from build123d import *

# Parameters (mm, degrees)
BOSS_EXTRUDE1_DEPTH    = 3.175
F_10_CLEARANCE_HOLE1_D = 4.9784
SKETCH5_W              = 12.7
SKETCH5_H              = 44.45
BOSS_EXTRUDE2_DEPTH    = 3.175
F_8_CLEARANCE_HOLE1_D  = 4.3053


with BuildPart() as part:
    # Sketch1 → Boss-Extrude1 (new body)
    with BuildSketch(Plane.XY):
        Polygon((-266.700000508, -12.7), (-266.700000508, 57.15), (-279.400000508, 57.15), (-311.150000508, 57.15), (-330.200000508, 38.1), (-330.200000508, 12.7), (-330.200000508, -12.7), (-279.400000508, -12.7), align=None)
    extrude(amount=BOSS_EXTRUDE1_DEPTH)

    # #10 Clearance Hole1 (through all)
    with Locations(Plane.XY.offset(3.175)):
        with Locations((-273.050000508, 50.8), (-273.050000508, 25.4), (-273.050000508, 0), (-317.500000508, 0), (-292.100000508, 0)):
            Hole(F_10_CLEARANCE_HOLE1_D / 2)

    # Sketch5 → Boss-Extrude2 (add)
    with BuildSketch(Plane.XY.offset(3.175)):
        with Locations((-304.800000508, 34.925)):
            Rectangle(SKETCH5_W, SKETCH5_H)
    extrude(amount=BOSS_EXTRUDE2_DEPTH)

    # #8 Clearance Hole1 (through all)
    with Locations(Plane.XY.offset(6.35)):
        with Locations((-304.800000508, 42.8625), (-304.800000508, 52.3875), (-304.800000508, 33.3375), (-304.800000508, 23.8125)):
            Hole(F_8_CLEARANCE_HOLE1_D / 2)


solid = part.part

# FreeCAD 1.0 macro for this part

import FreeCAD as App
import Part
import Sketcher
from FreeCAD import Vector
Q = App.Units.Quantity

doc = App.newDocument("Part")
body = doc.addObject("PartDesign::Body", "Body")

# Sketch on XY plane
sketch1 = body.newObject("Sketcher::SketchObject", "Sketch")
sketch1.AttachmentSupport = (doc.getObject("XY_Plane"), [""])
sketch1.MapMode = "FlatFace"
sketch1.addGeometry(Part.LineSegment(Vector(-267, -13, 0), Vector(-267, 57, 0)), False)
sketch1.addGeometry(Part.LineSegment(Vector(-267, 57, 0), Vector(-311, 57, 0)), False)
sketch1.addGeometry(Part.LineSegment(Vector(-311, 57, 0), Vector(-330, 38, 0)), False)
sketch1.addGeometry(Part.LineSegment(Vector(-330, 38, 0), Vector(-330, -13, 0)), False)
sketch1.addGeometry(Part.LineSegment(Vector(-330, -13, 0), Vector(-267, -13, 0)), False)
sketch1.addConstraint(Sketcher.Constraint("Coincident", 0, 2, 1, 1))
sketch1.addConstraint(Sketcher.Constraint("Coincident", 1, 2, 2, 1))
sketch1.addConstraint(Sketcher.Constraint("Coincident", 2, 2, 3, 1))
sketch1.addConstraint(Sketcher.Constraint("Coincident", 3, 2, 4, 1))
sketch1.addConstraint(Sketcher.Constraint("Coincident", 4, 2, 0, 1))
sketch1.addConstraint(Sketcher.Constraint("Vertical", 0))
sketch1.addConstraint(Sketcher.Constraint("Horizontal", 1))
sketch1.addConstraint(Sketcher.Constraint("Vertical", 3))
sketch1.addConstraint(Sketcher.Constraint("Horizontal", 4))
sketch1.addConstraint(Sketcher.Constraint("DistanceY", 3, 2, 3, 1, Q("2 in")))
sketch1.addConstraint(Sketcher.Constraint("DistanceX", 4, 1, 4, 2, Q("2.5 in")))
sketch1.addConstraint(Sketcher.Constraint("DistanceX", 2, 2, -1, 1, Q("13 in")))
sketch1.addConstraint(Sketcher.Constraint("Angle", 2, Q("-135 deg")))
sketch1.addConstraint(Sketcher.Constraint("DistanceX", 1, 2, 1, 1, Q("1.75 in")))
sketch1.addConstraint(Sketcher.Constraint("DistanceY", -1, 1, 2, 2, Q("1.5 in")))
pad1 = body.newObject("PartDesign::Pad", "Pad")
pad1.Profile = sketch1
pad1.Length = Q("0.125 in")

# Sketch on XY plane
sketch2 = body.newObject("Sketcher::SketchObject", "Sketch001")
sketch2.AttachmentSupport = (doc.getObject("XY_Plane"), [""])
sketch2.MapMode = "FlatFace"
sketch2.AttachmentOffset = App.Placement(Vector(0, 0, 0.125 * 25.4), App.Rotation())
sketch2.addGeometry(Part.Circle(Vector(-273.1, 50.8, 0), Vector(0, 0, 1), 2.5), False)
sketch2.addGeometry(Part.Circle(Vector(-273.1, 25.4, 0), Vector(0, 0, 1), 2.5), False)
sketch2.addGeometry(Part.Circle(Vector(-273.1, 0, 0), Vector(0, 0, 1), 2.5), False)
sketch2.addGeometry(Part.Circle(Vector(-317.5, 0, 0), Vector(0, 0, 1), 2.5), False)
sketch2.addGeometry(Part.Circle(Vector(-292.1, 0, 0), Vector(0, 0, 1), 2.5), False)
sketch2.addConstraint(Sketcher.Constraint("Equal", 0, 1))
sketch2.addConstraint(Sketcher.Constraint("Equal", 1, 2))
sketch2.addConstraint(Sketcher.Constraint("Equal", 2, 3))
sketch2.addConstraint(Sketcher.Constraint("Equal", 3, 4))
sketch2.addConstraint(Sketcher.Constraint("PointOnObject", 2, 3, -1))
sketch2.addConstraint(Sketcher.Constraint("PointOnObject", 3, 3, -1))
sketch2.addConstraint(Sketcher.Constraint("PointOnObject", 4, 3, -1))
sketch2.addConstraint(Sketcher.Constraint("Vertical", 0, 3, 1, 3))
sketch2.addConstraint(Sketcher.Constraint("Vertical", 1, 3, 2, 3))
sketch2.addConstraint(Sketcher.Constraint("Diameter", 0, Q("0.196 in")))
sketch2.addConstraint(Sketcher.Constraint("DistanceY", -1, 1, 0, 3, Q("2 in")))
sketch2.addConstraint(Sketcher.Constraint("DistanceY", -1, 1, 1, 3, Q("1 in")))
sketch2.addConstraint(Sketcher.Constraint("DistanceX", 3, 3, 4, 3, Q("1 in")))
sketch2.addConstraint(Sketcher.Constraint("DistanceX", 3, 3, -1, 1, Q("12.5 in")))
sketch2.addConstraint(Sketcher.Constraint("DistanceX", 0, 3, -1, 1, Q("10.75 in")))
doc.recompute()
hole = body.newObject("PartDesign::Hole", "Hole")
hole.Profile = sketch2
hole.ThreadType = "None"
hole.Diameter = Q("0.196 in")
hole.DepthType = "ThroughAll"

# Sketch on XY plane
sketch3 = body.newObject("Sketcher::SketchObject", "Sketch002")
sketch3.AttachmentSupport = (doc.getObject("XY_Plane"), [""])
sketch3.MapMode = "FlatFace"
sketch3.AttachmentOffset = App.Placement(Vector(0, 0, 0.125 * 25.4), App.Rotation())
sketch3.addGeometry(Part.LineSegment(Vector(-311, 57, 0), Vector(-311, 13, 0)), False)
sketch3.addGeometry(Part.LineSegment(Vector(-311, 13, 0), Vector(-298, 13, 0)), False)
sketch3.addGeometry(Part.LineSegment(Vector(-298, 13, 0), Vector(-298, 57, 0)), False)
sketch3.addGeometry(Part.LineSegment(Vector(-298, 57, 0), Vector(-311, 57, 0)), False)
sketch3.addConstraint(Sketcher.Constraint("Coincident", 0, 2, 1, 1))
sketch3.addConstraint(Sketcher.Constraint("Coincident", 1, 2, 2, 1))
sketch3.addConstraint(Sketcher.Constraint("Coincident", 2, 2, 3, 1))
sketch3.addConstraint(Sketcher.Constraint("Coincident", 3, 2, 0, 1))
sketch3.addConstraint(Sketcher.Constraint("Vertical", 0))
sketch3.addConstraint(Sketcher.Constraint("Horizontal", 1))
sketch3.addConstraint(Sketcher.Constraint("Vertical", 2))
sketch3.addConstraint(Sketcher.Constraint("Horizontal", 3))
sketch3.addConstraint(Sketcher.Constraint("DistanceX", 1, 1, 1, 2, Q("0.5 in")))
sketch3.addConstraint(Sketcher.Constraint("DistanceY", 0, 2, 0, 1, Q("1.75 in")))
sketch3.addConstraint(Sketcher.Constraint("DistanceY", -1, 1, 0, 2, Q("0.5 in")))
sketch3.addConstraint(Sketcher.Constraint("DistanceX", 0, 2, -1, 1, Q("12.25 in")))
pad2 = body.newObject("PartDesign::Pad", "Pad001")
pad2.Profile = sketch3
pad2.Length = Q("0.125 in")

# Sketch on XY plane
sketch4 = body.newObject("Sketcher::SketchObject", "Sketch003")
sketch4.AttachmentSupport = (doc.getObject("XY_Plane"), [""])
sketch4.MapMode = "FlatFace"
sketch4.AttachmentOffset = App.Placement(Vector(0, 0, 0.25 * 25.4), App.Rotation())
sketch4.addGeometry(Part.Circle(Vector(-304.8, 42.9, 0), Vector(0, 0, 1), 2.2), False)
sketch4.addGeometry(Part.Circle(Vector(-304.8, 52.4, 0), Vector(0, 0, 1), 2.2), False)
sketch4.addGeometry(Part.Circle(Vector(-304.8, 33.3, 0), Vector(0, 0, 1), 2.2), False)
sketch4.addGeometry(Part.Circle(Vector(-304.8, 23.8, 0), Vector(0, 0, 1), 2.2), False)
sketch4.addConstraint(Sketcher.Constraint("Equal", 0, 1))
sketch4.addConstraint(Sketcher.Constraint("Equal", 1, 2))
sketch4.addConstraint(Sketcher.Constraint("Equal", 2, 3))
sketch4.addConstraint(Sketcher.Constraint("Vertical", 0, 3, 1, 3))
sketch4.addConstraint(Sketcher.Constraint("Vertical", 1, 3, 2, 3))
sketch4.addConstraint(Sketcher.Constraint("Vertical", 2, 3, 3, 3))
sketch4.addConstraint(Sketcher.Constraint("DistanceX", 0, 3, -1, 1, Q("12 in")))
sketch4.addConstraint(Sketcher.Constraint("Diameter", 0, Q("0.1695 in")))
sketch4.addConstraint(Sketcher.Constraint("DistanceY", 2, 3, 1, 3, Q("0.75 in")))
sketch4.addConstraint(Sketcher.Constraint("DistanceY", 3, 3, 0, 3, Q("0.75 in")))
sketch4.addConstraint(Sketcher.Constraint("DistanceY", -1, 1, 0, 3, Q("1.6875 in")))
sketch4.addConstraint(Sketcher.Constraint("DistanceY", -1, 1, 1, 3, Q("2.0625 in")))
doc.recompute()
hole2 = body.newObject("PartDesign::Hole", "Hole001")
hole2.Profile = sketch4
hole2.ThreadType = "None"
hole2.Diameter = Q("0.1695 in")
hole2.DepthType = "ThroughAll"

doc.recompute()
